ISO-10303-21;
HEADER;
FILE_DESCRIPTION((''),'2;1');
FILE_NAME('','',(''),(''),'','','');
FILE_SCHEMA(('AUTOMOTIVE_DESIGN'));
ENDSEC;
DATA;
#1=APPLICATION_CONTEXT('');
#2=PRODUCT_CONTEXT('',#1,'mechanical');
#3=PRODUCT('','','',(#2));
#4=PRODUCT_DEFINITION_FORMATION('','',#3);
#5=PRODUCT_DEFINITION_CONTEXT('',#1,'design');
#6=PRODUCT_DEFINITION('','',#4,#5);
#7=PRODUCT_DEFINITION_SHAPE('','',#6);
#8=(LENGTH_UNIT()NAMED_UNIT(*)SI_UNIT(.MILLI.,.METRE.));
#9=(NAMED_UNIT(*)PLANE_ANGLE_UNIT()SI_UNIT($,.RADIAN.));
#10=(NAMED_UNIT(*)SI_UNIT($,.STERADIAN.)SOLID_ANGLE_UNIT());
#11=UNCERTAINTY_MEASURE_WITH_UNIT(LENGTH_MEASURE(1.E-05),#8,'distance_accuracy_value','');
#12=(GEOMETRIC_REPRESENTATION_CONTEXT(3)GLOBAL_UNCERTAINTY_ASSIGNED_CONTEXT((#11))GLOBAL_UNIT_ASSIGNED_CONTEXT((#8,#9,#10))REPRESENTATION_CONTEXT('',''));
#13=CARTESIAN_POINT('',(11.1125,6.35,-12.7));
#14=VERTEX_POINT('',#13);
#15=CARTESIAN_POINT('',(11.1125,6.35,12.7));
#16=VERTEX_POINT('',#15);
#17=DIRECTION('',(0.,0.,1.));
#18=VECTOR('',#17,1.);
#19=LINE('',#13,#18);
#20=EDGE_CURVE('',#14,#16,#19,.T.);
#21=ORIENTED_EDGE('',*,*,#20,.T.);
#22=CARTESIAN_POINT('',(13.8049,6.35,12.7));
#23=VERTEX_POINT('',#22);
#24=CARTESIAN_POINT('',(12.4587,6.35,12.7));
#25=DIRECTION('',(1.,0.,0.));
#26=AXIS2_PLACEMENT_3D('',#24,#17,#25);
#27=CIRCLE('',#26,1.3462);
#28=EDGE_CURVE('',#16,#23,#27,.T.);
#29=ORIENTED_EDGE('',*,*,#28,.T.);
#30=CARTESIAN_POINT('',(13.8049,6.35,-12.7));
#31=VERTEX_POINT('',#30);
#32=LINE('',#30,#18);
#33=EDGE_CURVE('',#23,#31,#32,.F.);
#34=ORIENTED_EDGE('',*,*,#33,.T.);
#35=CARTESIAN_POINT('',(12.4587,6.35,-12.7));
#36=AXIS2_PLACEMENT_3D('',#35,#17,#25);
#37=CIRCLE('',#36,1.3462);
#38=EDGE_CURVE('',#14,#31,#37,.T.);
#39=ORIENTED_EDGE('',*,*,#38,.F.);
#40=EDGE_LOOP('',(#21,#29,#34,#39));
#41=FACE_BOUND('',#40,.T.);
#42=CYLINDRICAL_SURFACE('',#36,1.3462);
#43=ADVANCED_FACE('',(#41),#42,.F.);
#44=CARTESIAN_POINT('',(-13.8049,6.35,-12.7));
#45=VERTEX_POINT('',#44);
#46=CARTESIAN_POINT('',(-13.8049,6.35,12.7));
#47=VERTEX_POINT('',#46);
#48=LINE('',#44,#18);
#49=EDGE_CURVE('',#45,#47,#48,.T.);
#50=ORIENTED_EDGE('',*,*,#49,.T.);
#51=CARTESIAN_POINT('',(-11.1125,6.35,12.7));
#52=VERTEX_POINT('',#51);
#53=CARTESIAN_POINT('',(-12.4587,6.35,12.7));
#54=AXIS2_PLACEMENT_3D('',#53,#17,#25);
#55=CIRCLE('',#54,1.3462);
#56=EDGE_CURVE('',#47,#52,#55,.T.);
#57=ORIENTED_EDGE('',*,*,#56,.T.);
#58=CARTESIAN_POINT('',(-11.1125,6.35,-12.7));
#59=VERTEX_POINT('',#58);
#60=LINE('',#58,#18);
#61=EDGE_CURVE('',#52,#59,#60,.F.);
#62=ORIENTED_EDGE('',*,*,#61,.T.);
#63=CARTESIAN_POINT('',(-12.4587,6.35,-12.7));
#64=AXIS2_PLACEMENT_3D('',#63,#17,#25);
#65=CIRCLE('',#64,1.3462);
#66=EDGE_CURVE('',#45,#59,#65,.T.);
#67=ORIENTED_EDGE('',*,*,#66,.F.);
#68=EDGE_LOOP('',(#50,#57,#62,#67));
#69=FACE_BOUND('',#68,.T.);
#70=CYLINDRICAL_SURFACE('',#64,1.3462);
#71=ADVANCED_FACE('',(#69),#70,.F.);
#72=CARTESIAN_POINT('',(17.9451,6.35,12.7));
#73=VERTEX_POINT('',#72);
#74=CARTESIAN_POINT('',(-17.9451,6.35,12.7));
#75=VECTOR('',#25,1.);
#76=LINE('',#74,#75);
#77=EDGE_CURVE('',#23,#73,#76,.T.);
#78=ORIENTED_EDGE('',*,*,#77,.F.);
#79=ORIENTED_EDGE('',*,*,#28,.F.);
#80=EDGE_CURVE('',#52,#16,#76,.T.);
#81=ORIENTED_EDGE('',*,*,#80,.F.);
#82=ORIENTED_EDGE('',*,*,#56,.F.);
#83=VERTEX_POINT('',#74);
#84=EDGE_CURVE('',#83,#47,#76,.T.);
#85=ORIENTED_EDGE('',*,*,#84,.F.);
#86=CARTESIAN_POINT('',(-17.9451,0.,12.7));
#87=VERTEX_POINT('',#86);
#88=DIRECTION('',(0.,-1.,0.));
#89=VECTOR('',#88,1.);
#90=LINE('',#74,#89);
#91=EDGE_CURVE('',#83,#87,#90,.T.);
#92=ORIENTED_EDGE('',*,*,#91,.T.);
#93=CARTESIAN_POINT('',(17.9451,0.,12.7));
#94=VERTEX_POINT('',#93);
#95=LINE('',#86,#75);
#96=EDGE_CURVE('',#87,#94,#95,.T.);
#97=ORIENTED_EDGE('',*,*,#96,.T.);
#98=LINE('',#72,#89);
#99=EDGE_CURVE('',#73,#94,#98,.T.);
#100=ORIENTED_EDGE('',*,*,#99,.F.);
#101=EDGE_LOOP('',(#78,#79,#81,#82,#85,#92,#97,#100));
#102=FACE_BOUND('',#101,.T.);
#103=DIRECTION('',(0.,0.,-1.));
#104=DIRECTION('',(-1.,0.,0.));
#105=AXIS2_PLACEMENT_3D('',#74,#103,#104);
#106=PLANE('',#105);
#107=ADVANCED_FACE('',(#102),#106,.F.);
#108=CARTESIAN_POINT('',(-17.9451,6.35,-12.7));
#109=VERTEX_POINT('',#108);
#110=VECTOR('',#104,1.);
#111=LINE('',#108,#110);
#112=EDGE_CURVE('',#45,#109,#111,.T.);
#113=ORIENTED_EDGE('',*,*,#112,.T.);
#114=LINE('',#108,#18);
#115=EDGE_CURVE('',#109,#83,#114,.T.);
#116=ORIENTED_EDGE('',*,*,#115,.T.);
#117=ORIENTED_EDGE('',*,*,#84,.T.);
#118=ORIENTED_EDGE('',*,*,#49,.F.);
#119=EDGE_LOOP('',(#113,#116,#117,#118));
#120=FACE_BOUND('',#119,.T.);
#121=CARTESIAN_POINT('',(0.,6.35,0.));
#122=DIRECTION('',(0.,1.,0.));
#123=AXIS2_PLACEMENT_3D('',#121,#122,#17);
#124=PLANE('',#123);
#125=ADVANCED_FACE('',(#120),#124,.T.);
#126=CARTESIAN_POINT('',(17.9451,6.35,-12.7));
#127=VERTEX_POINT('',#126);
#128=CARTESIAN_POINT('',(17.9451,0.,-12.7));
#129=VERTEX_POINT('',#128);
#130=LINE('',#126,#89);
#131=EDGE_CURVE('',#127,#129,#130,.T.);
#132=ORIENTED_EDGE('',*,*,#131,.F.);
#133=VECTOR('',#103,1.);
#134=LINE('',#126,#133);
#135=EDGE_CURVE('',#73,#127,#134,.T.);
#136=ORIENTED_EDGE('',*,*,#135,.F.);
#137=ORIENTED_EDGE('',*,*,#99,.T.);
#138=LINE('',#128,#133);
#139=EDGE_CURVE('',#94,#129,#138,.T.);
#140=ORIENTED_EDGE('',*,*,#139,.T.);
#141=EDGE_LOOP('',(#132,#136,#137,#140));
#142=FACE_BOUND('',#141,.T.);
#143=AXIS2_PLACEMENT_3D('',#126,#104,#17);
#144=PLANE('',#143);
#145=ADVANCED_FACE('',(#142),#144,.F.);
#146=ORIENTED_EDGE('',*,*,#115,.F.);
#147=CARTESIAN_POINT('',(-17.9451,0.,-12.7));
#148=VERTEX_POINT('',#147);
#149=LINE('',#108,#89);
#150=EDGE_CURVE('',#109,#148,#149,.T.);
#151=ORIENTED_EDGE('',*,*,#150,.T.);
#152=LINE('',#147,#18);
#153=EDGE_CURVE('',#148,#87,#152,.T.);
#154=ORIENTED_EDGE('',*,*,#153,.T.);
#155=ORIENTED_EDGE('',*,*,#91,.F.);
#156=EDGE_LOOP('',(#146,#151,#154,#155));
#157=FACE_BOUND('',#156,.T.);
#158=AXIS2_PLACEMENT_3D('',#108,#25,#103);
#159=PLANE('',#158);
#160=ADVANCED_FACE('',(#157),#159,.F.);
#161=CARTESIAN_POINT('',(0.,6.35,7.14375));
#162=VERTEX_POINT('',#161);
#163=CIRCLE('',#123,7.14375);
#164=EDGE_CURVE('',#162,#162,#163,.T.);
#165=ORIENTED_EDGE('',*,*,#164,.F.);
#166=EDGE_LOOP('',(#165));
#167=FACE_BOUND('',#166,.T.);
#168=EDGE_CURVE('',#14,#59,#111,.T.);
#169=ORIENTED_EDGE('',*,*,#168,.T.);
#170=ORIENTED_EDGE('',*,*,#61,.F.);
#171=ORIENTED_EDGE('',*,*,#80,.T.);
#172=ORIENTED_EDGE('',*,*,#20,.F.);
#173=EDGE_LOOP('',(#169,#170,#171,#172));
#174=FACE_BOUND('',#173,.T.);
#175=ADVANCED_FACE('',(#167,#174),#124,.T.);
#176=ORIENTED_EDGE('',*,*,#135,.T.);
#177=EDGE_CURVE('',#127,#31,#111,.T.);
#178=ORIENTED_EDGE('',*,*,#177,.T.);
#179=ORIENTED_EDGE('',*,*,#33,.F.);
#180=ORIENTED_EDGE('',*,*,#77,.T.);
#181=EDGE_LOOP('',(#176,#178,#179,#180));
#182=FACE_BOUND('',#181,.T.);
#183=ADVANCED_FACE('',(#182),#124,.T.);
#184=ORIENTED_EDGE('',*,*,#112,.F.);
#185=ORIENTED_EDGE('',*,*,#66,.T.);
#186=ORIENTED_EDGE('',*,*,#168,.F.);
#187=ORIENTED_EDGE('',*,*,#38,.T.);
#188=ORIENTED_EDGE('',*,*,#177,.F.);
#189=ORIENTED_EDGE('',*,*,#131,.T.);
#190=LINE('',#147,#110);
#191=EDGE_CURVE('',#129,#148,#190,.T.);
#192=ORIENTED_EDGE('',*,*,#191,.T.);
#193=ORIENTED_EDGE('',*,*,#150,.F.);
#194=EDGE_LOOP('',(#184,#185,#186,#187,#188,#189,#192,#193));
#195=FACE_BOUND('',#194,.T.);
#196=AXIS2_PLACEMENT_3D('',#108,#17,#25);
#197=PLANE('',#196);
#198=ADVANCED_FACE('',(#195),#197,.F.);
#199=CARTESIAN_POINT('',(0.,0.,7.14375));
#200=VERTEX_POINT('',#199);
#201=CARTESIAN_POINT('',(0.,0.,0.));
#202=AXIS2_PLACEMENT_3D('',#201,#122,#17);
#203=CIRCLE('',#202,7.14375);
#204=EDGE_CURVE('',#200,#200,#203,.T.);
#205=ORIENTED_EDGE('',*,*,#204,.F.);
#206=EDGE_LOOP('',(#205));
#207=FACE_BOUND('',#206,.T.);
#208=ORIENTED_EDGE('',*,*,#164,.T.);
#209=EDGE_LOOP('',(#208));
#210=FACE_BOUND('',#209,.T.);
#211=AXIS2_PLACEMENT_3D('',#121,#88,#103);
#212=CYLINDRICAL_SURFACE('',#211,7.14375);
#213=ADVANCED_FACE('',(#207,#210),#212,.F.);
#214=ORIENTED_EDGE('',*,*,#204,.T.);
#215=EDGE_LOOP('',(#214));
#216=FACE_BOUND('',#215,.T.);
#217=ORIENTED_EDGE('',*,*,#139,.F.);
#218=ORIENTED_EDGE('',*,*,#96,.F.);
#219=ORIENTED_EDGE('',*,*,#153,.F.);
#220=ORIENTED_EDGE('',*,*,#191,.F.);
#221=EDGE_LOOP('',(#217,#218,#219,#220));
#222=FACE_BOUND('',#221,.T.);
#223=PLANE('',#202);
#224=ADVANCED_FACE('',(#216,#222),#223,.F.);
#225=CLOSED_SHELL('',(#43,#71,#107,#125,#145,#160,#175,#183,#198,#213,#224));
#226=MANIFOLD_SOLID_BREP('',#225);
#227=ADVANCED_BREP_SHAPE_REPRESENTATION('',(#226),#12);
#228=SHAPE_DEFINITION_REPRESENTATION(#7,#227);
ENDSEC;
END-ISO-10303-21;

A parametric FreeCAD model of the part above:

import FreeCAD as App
import Part
import Sketcher
from FreeCAD import Vector
Q = App.Units.Quantity


def add_polygon(sketch, points):
    """Adds a closed chain of lines whose ends are joined by coincident constraints."""
    first, n = sketch.GeometryCount, len(points)
    for a, b in zip(points, points[1:] + points[:1]):
        sketch.addGeometry(Part.LineSegment(App.Vector(*a, 0), App.Vector(*b, 0)), False)
    for i in range(n):
        sketch.addConstraint(Sketcher.Constraint("Coincident", first + i, 2, first + (i + 1) % n, 1))

doc = App.newDocument("Part")
params = doc.addObject("Spreadsheet::Sheet", "Params")
for row, (alias, value) in enumerate([
    ("sketch1_height", "1 in"),
    ("sketch1_diameter", "0.5625 in"),
    ("sketch1_width", "1.413 in"),
    ("pad1_length", "0.25 in"),
    ("sketch2_diameter", "0.106 in"),
], start=1):
    params.set(f"A{row}", alias)
    params.set(f"B{row}", "=" + value)
    params.setAlias(f"B{row}", alias)

body = doc.addObject("PartDesign::Body", "Body")

sketch1 = body.newObject("Sketcher::SketchObject", "Sketch")
sketch1.AttachmentSupport = (doc.getObject("XZ_Plane"), [""])
sketch1.MapMode = "FlatFace"
add_polygon(sketch1, [(-18, -13), (-18, 13), (18, 13), (18, -13)])
sketch1.addGeometry(Part.Circle(Vector(0, 0, 0), Vector(0, 0, 1), 7), False)
sketch1.addConstraint([
    Sketcher.Constraint("Vertical", 0),
    Sketcher.Constraint("Horizontal", 1),
    Sketcher.Constraint("Vertical", 2),
    Sketcher.Constraint("Horizontal", 3),
    Sketcher.Constraint("Coincident", 4, 3, -1, 1),
    Sketcher.Constraint("Symmetric", 0, 2, 2, 2, -1, 1),
    Sketcher.Constraint("DistanceY", 0, 1, 0, 2, Q("1 in")),
    Sketcher.Constraint("Diameter", 4, Q("0.5625 in")),
    Sketcher.Constraint("DistanceX", 1, 1, 1, 2, Q("1.413 in")),
])
sketch1.setExpression("Constraints[10]", "Params.sketch1_height")
sketch1.setExpression("Constraints[11]", "Params.sketch1_diameter")
sketch1.setExpression("Constraints[12]", "Params.sketch1_width")
pad1 = body.newObject("PartDesign::Pad", "Pad")
pad1.Profile = sketch1
pad1.setExpression("Length", "Params.pad1_length")
pad1.Reversed = True

sketch2 = body.newObject("Sketcher::SketchObject", "Sketch001")
sketch2.AttachmentSupport = (doc.getObject("XY_Plane"), [""])
sketch2.MapMode = "FlatFace"
sketch2.AttachmentOffset = App.Placement(Vector(0, 0, 0.5 * 25.4), App.Rotation())
sketch2.addGeometry([
    Part.Circle(Vector(-12.5, 6.3, 0), Vector(0, 0, 1), 1.3),
    Part.Circle(Vector(12.5, 6.3, 0), Vector(0, 0, 1), 1.3),
], False)
sketch2.addConstraint([
    Sketcher.Constraint("Equal", 0, 1),
    Sketcher.Constraint("Symmetric", 0, 3, 1, 3, -2),
    Sketcher.Constraint("Diameter", 0, Q("0.106 in")),
    Sketcher.Constraint("DistanceY", -1, 1, 0, 3, Q("0.25 in")),
    Sketcher.Constraint("DistanceX", 0, 3, 1, 3, Q("0.981 in")),
])
sketch2.setExpression("Constraints[2]", "Params.sketch2_diameter")
pocket1 = body.newObject("PartDesign::Pocket", "Pocket")
pocket1.Profile = sketch2
pocket1.Type = "ThroughAll"

doc.recompute()
